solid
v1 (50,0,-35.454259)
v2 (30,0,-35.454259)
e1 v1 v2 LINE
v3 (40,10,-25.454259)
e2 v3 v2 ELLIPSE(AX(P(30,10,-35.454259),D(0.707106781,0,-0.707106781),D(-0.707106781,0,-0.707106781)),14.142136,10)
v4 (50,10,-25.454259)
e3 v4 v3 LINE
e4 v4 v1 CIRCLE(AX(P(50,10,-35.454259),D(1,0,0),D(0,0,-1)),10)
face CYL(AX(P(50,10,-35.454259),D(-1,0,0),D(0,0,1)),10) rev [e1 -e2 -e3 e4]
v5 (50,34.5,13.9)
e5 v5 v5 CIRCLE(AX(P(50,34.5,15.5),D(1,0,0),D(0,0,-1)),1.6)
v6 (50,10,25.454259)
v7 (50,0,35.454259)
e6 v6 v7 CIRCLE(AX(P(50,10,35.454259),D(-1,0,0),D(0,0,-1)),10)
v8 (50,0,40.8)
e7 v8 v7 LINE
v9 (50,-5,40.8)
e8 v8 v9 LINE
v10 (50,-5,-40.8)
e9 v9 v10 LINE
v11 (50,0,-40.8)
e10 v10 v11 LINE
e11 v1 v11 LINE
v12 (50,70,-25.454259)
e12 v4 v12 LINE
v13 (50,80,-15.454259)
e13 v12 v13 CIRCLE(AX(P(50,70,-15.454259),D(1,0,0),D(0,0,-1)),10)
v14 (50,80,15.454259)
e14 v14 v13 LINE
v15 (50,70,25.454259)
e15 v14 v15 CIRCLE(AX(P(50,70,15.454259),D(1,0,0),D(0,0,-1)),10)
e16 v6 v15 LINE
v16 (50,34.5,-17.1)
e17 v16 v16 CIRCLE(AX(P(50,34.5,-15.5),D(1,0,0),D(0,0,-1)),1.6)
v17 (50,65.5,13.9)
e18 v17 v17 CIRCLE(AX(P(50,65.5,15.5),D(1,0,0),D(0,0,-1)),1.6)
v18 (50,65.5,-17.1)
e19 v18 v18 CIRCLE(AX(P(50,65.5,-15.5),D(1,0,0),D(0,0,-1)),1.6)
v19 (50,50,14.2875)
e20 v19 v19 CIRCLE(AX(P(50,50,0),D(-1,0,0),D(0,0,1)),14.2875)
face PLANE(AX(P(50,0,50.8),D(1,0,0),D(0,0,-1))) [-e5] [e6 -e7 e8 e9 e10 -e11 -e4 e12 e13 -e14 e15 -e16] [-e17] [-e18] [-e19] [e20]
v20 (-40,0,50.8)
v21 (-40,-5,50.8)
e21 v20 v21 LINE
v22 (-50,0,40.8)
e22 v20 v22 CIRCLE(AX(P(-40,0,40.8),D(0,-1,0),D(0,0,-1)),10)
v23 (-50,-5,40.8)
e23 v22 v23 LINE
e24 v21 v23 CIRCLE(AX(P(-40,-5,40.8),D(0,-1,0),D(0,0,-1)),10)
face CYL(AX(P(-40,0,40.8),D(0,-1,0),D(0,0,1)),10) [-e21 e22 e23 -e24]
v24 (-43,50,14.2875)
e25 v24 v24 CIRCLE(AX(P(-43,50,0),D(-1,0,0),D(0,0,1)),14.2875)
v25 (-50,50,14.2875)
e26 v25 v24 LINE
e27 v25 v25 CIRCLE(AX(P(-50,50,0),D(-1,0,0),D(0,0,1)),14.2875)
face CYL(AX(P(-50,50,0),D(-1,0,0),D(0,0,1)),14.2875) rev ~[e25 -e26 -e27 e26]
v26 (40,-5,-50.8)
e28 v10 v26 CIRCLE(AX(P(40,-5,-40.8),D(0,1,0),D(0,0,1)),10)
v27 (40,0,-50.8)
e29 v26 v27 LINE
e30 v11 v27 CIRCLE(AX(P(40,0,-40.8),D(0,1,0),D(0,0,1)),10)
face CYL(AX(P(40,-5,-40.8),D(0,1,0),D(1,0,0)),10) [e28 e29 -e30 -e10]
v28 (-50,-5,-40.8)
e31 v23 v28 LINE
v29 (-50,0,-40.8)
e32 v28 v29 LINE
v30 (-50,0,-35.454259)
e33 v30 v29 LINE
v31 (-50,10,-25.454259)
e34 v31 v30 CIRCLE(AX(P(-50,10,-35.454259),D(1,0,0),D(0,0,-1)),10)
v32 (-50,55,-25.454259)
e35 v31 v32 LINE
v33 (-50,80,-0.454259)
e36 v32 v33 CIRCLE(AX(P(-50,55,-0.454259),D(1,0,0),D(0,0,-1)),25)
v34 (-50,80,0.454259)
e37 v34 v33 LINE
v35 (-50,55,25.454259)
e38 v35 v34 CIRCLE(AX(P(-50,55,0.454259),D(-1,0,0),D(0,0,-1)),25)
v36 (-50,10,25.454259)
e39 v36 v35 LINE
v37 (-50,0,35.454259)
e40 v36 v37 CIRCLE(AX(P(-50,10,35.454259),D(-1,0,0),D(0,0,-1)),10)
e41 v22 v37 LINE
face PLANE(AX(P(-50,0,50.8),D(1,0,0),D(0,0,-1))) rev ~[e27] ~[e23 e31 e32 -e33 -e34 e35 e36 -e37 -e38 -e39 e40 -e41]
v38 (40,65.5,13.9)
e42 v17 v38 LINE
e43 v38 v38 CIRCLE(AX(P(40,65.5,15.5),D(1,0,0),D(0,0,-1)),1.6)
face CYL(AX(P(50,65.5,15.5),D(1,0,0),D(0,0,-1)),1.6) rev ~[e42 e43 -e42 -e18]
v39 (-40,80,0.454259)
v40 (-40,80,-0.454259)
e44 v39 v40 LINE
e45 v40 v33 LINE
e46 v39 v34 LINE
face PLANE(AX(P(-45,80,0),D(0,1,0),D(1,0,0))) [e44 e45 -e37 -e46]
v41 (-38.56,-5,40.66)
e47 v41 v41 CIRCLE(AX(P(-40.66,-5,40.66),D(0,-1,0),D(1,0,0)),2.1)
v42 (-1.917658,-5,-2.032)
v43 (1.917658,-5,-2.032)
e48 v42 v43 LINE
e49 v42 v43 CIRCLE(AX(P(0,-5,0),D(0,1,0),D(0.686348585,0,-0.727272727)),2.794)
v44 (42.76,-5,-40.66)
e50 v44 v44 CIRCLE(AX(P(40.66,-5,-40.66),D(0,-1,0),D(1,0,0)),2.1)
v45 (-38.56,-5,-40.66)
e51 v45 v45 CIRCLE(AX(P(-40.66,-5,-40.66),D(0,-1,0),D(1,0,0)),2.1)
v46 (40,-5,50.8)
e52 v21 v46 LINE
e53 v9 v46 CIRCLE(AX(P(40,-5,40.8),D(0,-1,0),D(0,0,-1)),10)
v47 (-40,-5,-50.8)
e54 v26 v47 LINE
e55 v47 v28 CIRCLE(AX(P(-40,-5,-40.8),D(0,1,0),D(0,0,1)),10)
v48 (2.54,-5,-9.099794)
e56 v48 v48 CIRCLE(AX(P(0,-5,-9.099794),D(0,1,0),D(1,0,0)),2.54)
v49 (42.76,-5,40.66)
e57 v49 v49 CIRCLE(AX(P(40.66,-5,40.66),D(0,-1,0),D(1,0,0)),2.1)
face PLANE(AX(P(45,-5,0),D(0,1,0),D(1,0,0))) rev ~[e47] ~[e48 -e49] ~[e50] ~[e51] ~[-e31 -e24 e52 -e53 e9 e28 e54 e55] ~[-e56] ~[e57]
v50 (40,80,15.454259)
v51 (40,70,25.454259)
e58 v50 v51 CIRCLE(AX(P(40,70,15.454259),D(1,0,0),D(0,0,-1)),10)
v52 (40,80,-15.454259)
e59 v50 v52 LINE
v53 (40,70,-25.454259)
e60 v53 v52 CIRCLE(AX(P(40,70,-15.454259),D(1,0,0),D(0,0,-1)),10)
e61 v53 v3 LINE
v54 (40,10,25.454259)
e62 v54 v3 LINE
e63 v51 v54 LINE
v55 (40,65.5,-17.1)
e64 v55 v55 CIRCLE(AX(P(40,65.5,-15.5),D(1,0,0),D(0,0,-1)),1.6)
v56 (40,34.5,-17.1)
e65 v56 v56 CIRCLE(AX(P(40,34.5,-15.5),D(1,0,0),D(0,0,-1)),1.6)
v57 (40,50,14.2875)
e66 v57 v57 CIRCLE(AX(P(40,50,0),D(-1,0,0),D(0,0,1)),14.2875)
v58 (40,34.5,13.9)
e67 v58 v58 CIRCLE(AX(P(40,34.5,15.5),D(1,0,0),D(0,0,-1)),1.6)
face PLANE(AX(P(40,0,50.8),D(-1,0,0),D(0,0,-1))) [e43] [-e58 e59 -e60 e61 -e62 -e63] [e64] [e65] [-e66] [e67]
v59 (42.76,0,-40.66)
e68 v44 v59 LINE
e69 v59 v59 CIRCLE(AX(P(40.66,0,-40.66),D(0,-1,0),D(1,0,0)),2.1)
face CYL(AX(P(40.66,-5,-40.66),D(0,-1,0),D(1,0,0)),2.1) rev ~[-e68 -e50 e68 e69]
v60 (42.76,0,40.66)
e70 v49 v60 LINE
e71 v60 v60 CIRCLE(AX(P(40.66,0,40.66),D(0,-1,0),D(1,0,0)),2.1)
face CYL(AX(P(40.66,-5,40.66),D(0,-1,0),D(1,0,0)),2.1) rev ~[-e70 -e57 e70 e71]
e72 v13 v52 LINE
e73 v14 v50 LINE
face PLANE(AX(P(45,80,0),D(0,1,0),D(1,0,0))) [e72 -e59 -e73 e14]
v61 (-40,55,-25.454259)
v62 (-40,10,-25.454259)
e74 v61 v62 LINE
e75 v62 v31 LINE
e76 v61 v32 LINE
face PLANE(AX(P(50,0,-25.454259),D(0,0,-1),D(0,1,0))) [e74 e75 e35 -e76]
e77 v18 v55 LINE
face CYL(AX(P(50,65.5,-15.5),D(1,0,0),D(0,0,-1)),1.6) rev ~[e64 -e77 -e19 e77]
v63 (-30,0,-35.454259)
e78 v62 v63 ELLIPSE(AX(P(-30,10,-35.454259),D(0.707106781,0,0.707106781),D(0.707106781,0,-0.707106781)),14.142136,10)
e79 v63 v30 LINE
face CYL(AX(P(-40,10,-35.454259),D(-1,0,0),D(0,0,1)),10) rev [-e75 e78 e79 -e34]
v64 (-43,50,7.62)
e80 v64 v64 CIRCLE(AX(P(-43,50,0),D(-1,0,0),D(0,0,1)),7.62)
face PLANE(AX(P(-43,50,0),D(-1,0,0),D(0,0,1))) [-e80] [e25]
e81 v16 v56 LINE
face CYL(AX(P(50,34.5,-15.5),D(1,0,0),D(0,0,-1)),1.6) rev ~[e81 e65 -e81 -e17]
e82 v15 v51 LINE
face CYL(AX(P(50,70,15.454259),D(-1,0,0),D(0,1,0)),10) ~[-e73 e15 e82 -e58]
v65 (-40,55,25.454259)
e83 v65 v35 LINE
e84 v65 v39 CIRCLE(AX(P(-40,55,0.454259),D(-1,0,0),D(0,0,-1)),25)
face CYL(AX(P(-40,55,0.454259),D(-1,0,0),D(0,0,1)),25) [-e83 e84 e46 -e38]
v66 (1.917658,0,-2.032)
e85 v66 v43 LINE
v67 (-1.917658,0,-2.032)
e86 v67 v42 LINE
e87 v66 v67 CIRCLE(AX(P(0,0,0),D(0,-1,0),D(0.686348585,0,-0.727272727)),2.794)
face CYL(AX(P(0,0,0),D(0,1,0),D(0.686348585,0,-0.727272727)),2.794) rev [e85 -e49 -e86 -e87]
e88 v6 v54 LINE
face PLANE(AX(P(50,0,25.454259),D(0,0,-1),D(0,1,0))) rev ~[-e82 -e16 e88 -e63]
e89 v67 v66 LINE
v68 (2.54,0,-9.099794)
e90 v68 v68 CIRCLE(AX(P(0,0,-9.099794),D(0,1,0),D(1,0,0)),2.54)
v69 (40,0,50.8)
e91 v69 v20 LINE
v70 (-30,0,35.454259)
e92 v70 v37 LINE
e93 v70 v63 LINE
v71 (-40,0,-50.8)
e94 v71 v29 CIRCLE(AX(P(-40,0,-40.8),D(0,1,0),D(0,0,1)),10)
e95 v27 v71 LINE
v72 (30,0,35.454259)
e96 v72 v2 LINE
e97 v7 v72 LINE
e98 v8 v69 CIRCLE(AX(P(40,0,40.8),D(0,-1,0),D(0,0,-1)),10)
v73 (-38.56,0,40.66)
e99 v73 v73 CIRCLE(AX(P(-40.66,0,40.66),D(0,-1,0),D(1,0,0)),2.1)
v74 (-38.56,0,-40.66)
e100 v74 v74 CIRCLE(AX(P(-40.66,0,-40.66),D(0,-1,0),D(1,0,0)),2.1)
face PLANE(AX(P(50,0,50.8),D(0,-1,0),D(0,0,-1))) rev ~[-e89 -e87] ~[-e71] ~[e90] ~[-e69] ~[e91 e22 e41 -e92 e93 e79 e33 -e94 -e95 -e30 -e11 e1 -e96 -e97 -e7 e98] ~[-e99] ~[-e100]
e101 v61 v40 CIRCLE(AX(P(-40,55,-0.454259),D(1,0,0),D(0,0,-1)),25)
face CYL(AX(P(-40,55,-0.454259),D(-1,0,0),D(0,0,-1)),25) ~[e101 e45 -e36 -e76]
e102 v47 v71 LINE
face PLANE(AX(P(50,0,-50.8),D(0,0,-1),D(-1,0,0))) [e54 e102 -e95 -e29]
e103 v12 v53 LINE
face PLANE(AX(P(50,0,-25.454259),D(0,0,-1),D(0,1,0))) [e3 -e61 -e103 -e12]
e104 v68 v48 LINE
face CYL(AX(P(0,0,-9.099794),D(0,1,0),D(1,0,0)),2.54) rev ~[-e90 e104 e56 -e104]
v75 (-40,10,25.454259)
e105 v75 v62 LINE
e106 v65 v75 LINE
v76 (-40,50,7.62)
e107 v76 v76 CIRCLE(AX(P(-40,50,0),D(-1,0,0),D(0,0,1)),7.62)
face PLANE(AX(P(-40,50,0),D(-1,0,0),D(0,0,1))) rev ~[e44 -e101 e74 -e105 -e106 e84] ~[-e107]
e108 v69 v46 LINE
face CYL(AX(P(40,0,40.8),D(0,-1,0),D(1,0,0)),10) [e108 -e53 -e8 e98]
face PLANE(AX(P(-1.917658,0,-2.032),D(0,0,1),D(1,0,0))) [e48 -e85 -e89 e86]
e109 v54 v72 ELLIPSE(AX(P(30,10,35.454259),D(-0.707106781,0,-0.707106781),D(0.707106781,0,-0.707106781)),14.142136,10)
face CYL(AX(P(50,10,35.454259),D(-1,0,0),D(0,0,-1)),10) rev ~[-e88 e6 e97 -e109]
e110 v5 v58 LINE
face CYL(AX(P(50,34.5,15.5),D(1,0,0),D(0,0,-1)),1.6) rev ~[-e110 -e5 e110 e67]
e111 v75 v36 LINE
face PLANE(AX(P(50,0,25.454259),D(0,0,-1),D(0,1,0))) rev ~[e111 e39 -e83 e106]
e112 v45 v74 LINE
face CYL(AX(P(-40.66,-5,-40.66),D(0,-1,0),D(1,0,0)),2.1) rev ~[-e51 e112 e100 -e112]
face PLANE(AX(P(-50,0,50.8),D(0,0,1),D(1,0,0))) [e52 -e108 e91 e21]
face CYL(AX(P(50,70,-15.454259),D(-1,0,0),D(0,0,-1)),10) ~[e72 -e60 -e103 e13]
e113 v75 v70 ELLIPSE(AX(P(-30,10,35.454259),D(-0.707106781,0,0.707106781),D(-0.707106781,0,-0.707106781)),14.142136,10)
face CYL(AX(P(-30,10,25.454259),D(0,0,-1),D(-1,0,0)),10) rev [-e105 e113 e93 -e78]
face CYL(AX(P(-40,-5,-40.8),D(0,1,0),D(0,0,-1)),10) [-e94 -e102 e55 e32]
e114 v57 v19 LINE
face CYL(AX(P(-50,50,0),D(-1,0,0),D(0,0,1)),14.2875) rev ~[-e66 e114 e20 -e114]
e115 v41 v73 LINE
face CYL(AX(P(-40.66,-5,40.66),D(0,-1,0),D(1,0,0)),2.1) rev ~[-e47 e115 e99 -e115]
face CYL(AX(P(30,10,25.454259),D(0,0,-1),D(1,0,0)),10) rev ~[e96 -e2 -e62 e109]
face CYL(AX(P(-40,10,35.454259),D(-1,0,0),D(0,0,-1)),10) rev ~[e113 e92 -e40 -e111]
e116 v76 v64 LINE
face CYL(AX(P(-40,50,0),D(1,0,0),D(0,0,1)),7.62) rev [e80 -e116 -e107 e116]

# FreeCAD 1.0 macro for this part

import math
import FreeCAD as App
import Part
import Sketcher

V = App.Vector


def edges_at(feature, points):
    """Names of the edges that pass closest to the given points."""
    edges = feature.Shape.Edges
    near = lambda p: min(range(len(edges)), key=lambda i: edges[i].distToShape(Part.Vertex(*p))[0])
    return sorted({f"Edge{near(p) + 1}" for p in points})


def add_polygon(sketch, points):
    """Adds a closed chain of lines whose ends are joined by coincident constraints."""
    first, n = sketch.GeometryCount, len(points)
    for a, b in zip(points, points[1:] + points[:1]):
        sketch.addGeometry(Part.LineSegment(App.Vector(*a, 0), App.Vector(*b, 0)), False)
    for i in range(n):
        sketch.addConstraint(Sketcher.Constraint("Coincident", first + i, 2, first + (i + 1) % n, 1))

doc = App.newDocument("Part")
body = doc.addObject("PartDesign::Body", "Body")

# Sketch on XZ plane
sketch1 = body.newObject("Sketcher::SketchObject", "Sketch")
sketch1.AttachmentSupport = (doc.getObject("XZ_Plane"), [""])
sketch1.MapMode = "FlatFace"
add_polygon(sketch1, [(-50, -51), (-50, 51), (-40, 51), (-40, -51)])  # lines 0-3
sketch1.addConstraint([
    Sketcher.Constraint("Vertical", 0),
    Sketcher.Constraint("Horizontal", 1),
    Sketcher.Constraint("Vertical", 2),
    Sketcher.Constraint("Horizontal", 3),
    Sketcher.Constraint("DistanceX", 1, 1, 1, 2, 10.0),
    Sketcher.Constraint("DistanceY", 0, 1, 0, 2, 101.6),
    Sketcher.Constraint("DistanceX", 0, 2, -1, 1, 50.0),
    Sketcher.Constraint("DistanceY", -1, 1, 0, 2, 50.8),
])
pad1 = body.newObject("PartDesign::Pad", "Pad")
pad1.Profile = sketch1
pad1.Length = 80
pad1.Reversed = True
body2 = doc.addObject("PartDesign::Body", "Body001")

# Sketch on XZ plane
sketch2 = body2.newObject("Sketcher::SketchObject", "Sketch001")
sketch2.AttachmentSupport = (doc.getObject("XZ_Plane001"), [""])
sketch2.MapMode = "FlatFace"
add_polygon(sketch2, [(40, -51), (40, 51), (50, 51), (50, -51)])  # lines 0-3
sketch2.addConstraint([
    Sketcher.Constraint("Vertical", 0),
    Sketcher.Constraint("Horizontal", 1),
    Sketcher.Constraint("Vertical", 2),
    Sketcher.Constraint("Horizontal", 3),
    Sketcher.Constraint("DistanceX", 1, 1, 1, 2, 10.0),
    Sketcher.Constraint("DistanceY", 0, 1, 0, 2, 101.6),
    Sketcher.Constraint("DistanceX", -1, 1, 0, 2, 40.0),
    Sketcher.Constraint("DistanceY", -1, 1, 0, 2, 50.8),
])
pad2 = body2.newObject("PartDesign::Pad", "Pad001")
pad2.Profile = sketch2
pad2.Length = 80
pad2.Reversed = True
body.AllowCompound = True
doc.recompute()

boolean = body.newObject("PartDesign::Boolean", "Boolean")
boolean.Type = "Fuse"
boolean.addObjects([body2])

# Sketch on XZ plane
sketch3 = body.newObject("Sketcher::SketchObject", "Sketch002")
sketch3.AttachmentSupport = (doc.getObject("XZ_Plane"), [""])
sketch3.MapMode = "FlatFace"
add_polygon(sketch3, [(50, 51), (50, -51), (-50, -51), (-50, 51)])  # lines 0-3
sketch3.addConstraint([
    Sketcher.Constraint("Vertical", 0),
    Sketcher.Constraint("Horizontal", 1),
    Sketcher.Constraint("Vertical", 2),
    Sketcher.Constraint("Horizontal", 3),
    Sketcher.Constraint("Symmetric", 0, 2, 2, 2, -1, 1),
    Sketcher.Constraint("DistanceX", 1, 2, 1, 1, 100.0),
    Sketcher.Constraint("DistanceY", 0, 2, 0, 1, 101.6),
])
pad3 = body.newObject("PartDesign::Pad", "Pad002")
pad3.Profile = sketch3
pad3.Length = 5

# Sketch on YZ plane
sketch4 = body.newObject("Sketcher::SketchObject", "Sketch003")
sketch4.AttachmentSupport = (doc.getObject("YZ_Plane"), [""])
sketch4.MapMode = "FlatFace"
sketch4.AttachmentOffset = App.Placement(V(0, 0, -50), App.Rotation())
sketch4.addGeometry(Part.Circle(V(50, 0, 0), V(0, 0, 1), 14), False)
sketch4.addConstraint([
    Sketcher.Constraint("PointOnObject", 0, 3, -1),
    Sketcher.Constraint("Diameter", 0, 28.575),
    Sketcher.Constraint("DistanceX", -1, 1, 0, 3, 50.0),
])
pocket1 = body.newObject("PartDesign::Pocket", "Pocket")
pocket1.Profile = sketch4
pocket1.Length = 117
pocket1.Reversed = True

# Sketch on YZ plane
sketch5 = body.newObject("Sketcher::SketchObject", "Sketch004")
sketch5.AttachmentSupport = (doc.getObject("YZ_Plane"), [""])
sketch5.MapMode = "FlatFace"
sketch5.AttachmentOffset = App.Placement(V(0, 0, 50), App.Rotation())
add_polygon(sketch5, [(80, 51), (0, 51), (0, 25), (80, 25)])  # lines 0-3
add_polygon(sketch5, [(80, -25), (0, -25), (0, -51), (80, -51)])  # lines 4-7
sketch5.addConstraint([
    Sketcher.Constraint("Horizontal", 0),
    Sketcher.Constraint("Vertical", 1),
    Sketcher.Constraint("Horizontal", 2),
    Sketcher.Constraint("Vertical", 3),
    Sketcher.Constraint("Horizontal", 4),
    Sketcher.Constraint("Vertical", 5),
    Sketcher.Constraint("Horizontal", 6),
    Sketcher.Constraint("Vertical", 7),
    Sketcher.Constraint("Symmetric", 1, 2, 4, 2, -1, 1),
    Sketcher.Constraint("Symmetric", 0, 2, 5, 2, -1),
    Sketcher.Constraint("Vertical", 3, 2, 6, 2),
    Sketcher.Constraint("DistanceX", 0, 2, 0, 1, 80.0),
    Sketcher.Constraint("DistanceY", -1, 1, 0, 2, 50.8),
    Sketcher.Constraint("DistanceY", 1, 2, 1, 1, 25.345741),
])
pocket2 = body.newObject("PartDesign::Pocket", "Pocket001")
pocket2.Profile = sketch5
pocket2.Length = 119
doc.recompute()

fillet = body.newObject("PartDesign::Fillet", "Fillet")
fillet.Base = (pocket2, edges_at(pocket2, [
    (45, 80, -25.454),
    (45, 80, 25.454),
    (40, 0, 0),
    (-40, 0, 0),
    (-45, 0, 25.454),
    (45, 0, 25.454),
    (-45, 0, -25.454),
    (45, 0, -25.454),
]))
fillet.Radius = 10
doc.recompute()

fillet2 = body.newObject("PartDesign::Fillet", "Fillet001")
fillet2.Base = (fillet, edges_at(fillet, [
    (50, -2.5, -50.8),
    (50, -2.5, 50.8),
    (-50, -2.5, 50.8),
    (-50, -2.5, -50.8),
]))
fillet2.Radius = 10

# Sketch on YZ plane
sketch6 = body.newObject("Sketcher::SketchObject", "Sketch005")
sketch6.AttachmentSupport = (doc.getObject("YZ_Plane"), [""])
sketch6.MapMode = "FlatFace"
sketch6.AttachmentOffset = App.Placement(V(0, 0, 50), App.Rotation())
sketch6.addGeometry([
    Part.Circle(V(65.5, 15.5, 0), V(0, 0, 1), 1.6),
    Part.Circle(V(65.5, -15.5, 0), V(0, 0, 1), 1.6),
    Part.Circle(V(34.5, -15.5, 0), V(0, 0, 1), 1.6),
    Part.Circle(V(34.5, 15.5, 0), V(0, 0, 1), 1.6),
], False)
sketch6.addConstraint([
    Sketcher.Constraint("Equal", 0, 1),
    Sketcher.Constraint("Equal", 1, 2),
    Sketcher.Constraint("Equal", 2, 3),
    Sketcher.Constraint("Symmetric", 0, 3, 1, 3, -1),
    Sketcher.Constraint("Symmetric", 2, 3, 3, 3, -1),
    Sketcher.Constraint("Horizontal", 1, 3, 2, 3),
    Sketcher.Constraint("Diameter", 0, 3.2),
    Sketcher.Constraint("DistanceY", 1, 3, 0, 3, 31.0),
    Sketcher.Constraint("DistanceX", 2, 3, 1, 3, 31.0),
    Sketcher.Constraint("DistanceX", -1, 1, 0, 3, 65.5),
])
pocket3 = body.newObject("PartDesign::Pocket", "Pocket002")
pocket3.Profile = sketch6
pocket3.Length = 21

# Sketch on YZ plane
sketch7 = body.newObject("Sketcher::SketchObject", "Sketch006")
sketch7.AttachmentSupport = (doc.getObject("YZ_Plane"), [""])
sketch7.MapMode = "FlatFace"
sketch7.AttachmentOffset = App.Placement(V(0, 0, -40), App.Rotation())
sketch7.addGeometry([
    Part.Circle(V(50, 0, 0), V(0, 0, 1), 14),
    Part.Circle(V(50, 0, 0), V(0, 0, 1), 8),
], False)
sketch7.addConstraint([
    Sketcher.Constraint("Coincident", 1, 3, 0, 3),
    Sketcher.Constraint("PointOnObject", 0, 3, -1),
    Sketcher.Constraint("Diameter", 1, 15.24),
    Sketcher.Constraint("Diameter", 0, 28.575),
    Sketcher.Constraint("DistanceX", -1, 1, 0, 3, 50.0),
])
pad4 = body.newObject("PartDesign::Pad", "Pad003")
pad4.Profile = sketch7
pad4.Length = 3
pad4.Reversed = True

# Sketch on XZ plane
sketch8 = body.newObject("Sketcher::SketchObject", "Sketch007")
sketch8.AttachmentSupport = (doc.getObject("XZ_Plane"), [""])
sketch8.MapMode = "FlatFace"
sketch8.AttachmentOffset = App.Placement(V(0, 0, 5), App.Rotation())
sketch8.addGeometry([
    Part.Circle(V(-40.7, 40.7, 0), V(0, 0, 1), 2.1),
    Part.Circle(V(40.7, 40.7, 0), V(0, 0, 1), 2.1),
    Part.Circle(V(-40.7, -40.7, 0), V(0, 0, 1), 2.1),
    Part.Circle(V(40.7, -40.7, 0), V(0, 0, 1), 2.1),
], False)
sketch8.addConstraint([
    Sketcher.Constraint("Equal", 0, 1),
    Sketcher.Constraint("Equal", 1, 2),
    Sketcher.Constraint("Equal", 2, 3),
    Sketcher.Constraint("Symmetric", 1, 3, 2, 3, -1, 1),
    Sketcher.Constraint("Symmetric", 0, 3, 3, 3, -1, 1),
    Sketcher.Constraint("Symmetric", 0, 3, 1, 3, -2),
    Sketcher.Constraint("Diameter", 0, 4.2),
    Sketcher.Constraint("DistanceX", 0, 3, -1, 1, 40.66),
    Sketcher.Constraint("DistanceY", -1, 1, 0, 3, 40.66),
])
pocket4 = body.newObject("PartDesign::Pocket", "Pocket003")
pocket4.Profile = sketch8
pocket4.Length = 5

# Sketch on XZ plane
sketch9 = body.newObject("Sketcher::SketchObject", "Sketch008")
sketch9.AttachmentSupport = (doc.getObject("XZ_Plane"), [""])
sketch9.MapMode = "FlatFace"
sketch9.addGeometry([
    Part.LineSegment(V(1.9, -2, 0), V(-1.9, -2, 0)),
    Part.ArcOfCircle(Part.Circle(V(0, 0, 0), V(0, 0, 1), 2.8), math.radians(-47), math.radians(227)),
], False)
sketch9.addConstraint([
    Sketcher.Constraint("Coincident", 0, 1, 1, 1),
    Sketcher.Constraint("Coincident", 1, 2, 0, 2),
    Sketcher.Constraint("Horizontal", 0),
    Sketcher.Constraint("Coincident", 1, 3, -1, 1),
    Sketcher.Constraint("Radius", 1, 2.794),
    Sketcher.Constraint("DistanceY", 0, 1, -1, 1, 2.032),
])
pocket5 = body.newObject("PartDesign::Pocket", "Pocket004")
pocket5.Profile = sketch9
pocket5.Length = 10
pocket5.Reversed = True

# Sketch on XZ plane
sketch10 = body.newObject("Sketcher::SketchObject", "Sketch009")
sketch10.AttachmentSupport = (doc.getObject("XZ_Plane"), [""])
sketch10.MapMode = "FlatFace"
sketch10.addGeometry(Part.Circle(V(0, -9.1, 0), V(0, 0, 1), 2.5), False)
sketch10.addConstraint([
    Sketcher.Constraint("PointOnObject", 0, 3, -2),
    Sketcher.Constraint("Diameter", 0, 5.08),
    Sketcher.Constraint("DistanceY", 0, 3, -1, 1, 9.099794),
])
pocket6 = body.newObject("PartDesign::Pocket", "Pocket005")
pocket6.Profile = sketch10
pocket6.Length = 10
pocket6.Reversed = True
doc.recompute()

fillet3 = body.newObject("PartDesign::Fillet", "Fillet002")
fillet3.Base = (pocket6, edges_at(pocket6, [(-45, 80, 25.454), (-45, 80, -25.454)]))
fillet3.Radius = 25

doc.recompute()
